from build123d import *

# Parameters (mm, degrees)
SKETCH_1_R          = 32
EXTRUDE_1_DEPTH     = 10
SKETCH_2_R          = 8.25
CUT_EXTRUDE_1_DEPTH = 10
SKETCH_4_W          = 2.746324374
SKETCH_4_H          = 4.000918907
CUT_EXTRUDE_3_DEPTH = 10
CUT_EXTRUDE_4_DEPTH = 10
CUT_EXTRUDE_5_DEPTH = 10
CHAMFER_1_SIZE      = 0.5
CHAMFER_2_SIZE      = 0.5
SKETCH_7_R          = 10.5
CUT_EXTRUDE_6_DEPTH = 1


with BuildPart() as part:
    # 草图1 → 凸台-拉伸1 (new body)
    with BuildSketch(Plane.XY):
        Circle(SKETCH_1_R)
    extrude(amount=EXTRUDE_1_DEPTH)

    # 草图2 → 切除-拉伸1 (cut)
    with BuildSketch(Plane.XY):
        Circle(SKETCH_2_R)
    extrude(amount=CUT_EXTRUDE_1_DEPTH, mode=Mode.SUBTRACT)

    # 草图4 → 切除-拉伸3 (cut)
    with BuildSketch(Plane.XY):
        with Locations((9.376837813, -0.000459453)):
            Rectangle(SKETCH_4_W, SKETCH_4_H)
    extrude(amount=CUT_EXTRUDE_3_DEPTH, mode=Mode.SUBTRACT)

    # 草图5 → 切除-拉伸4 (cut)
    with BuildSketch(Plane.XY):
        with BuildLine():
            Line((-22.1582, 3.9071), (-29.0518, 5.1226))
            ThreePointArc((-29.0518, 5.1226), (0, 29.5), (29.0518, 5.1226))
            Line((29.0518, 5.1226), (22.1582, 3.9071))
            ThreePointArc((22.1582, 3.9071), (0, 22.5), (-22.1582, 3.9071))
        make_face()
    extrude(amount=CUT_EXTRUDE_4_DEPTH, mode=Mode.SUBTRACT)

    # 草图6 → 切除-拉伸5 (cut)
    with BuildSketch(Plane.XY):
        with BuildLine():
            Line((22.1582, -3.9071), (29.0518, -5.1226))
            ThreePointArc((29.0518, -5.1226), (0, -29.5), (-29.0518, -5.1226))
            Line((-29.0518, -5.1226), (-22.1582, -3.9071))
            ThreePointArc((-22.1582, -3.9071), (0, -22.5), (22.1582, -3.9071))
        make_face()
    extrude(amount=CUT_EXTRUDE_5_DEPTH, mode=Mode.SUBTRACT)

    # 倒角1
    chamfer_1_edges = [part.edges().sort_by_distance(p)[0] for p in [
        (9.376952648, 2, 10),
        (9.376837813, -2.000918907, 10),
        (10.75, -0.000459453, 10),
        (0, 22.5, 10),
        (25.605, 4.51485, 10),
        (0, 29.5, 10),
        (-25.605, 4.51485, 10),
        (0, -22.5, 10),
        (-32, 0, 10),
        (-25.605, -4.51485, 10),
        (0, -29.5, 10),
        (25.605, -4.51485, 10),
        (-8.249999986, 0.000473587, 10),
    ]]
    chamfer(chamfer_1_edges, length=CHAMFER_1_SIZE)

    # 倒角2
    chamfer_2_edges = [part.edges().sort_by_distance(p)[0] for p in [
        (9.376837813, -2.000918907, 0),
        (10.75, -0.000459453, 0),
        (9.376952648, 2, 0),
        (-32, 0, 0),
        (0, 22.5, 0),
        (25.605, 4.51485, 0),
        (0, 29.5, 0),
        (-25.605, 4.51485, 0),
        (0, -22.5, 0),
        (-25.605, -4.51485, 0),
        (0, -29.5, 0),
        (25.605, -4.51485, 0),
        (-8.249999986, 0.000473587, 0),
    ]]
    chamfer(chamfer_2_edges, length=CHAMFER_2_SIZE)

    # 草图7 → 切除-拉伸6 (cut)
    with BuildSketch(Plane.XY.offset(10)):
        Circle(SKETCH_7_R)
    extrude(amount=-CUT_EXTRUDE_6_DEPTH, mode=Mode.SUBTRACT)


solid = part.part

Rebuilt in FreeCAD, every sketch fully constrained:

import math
import FreeCAD as App
import Part
import Sketcher


def edges_at(feature, points):
    """Names of the edges that pass closest to the given points."""
    edges = feature.Shape.Edges
    near = lambda p: min(range(len(edges)), key=lambda i: edges[i].distToShape(Part.Vertex(*p))[0])
    return sorted({f"Edge{near(p) + 1}" for p in points})


def add_polygon(sketch, points):
    """Adds a closed chain of lines whose ends are joined by coincident constraints."""
    first, n = sketch.GeometryCount, len(points)
    for a, b in zip(points, points[1:] + points[:1]):
        sketch.addGeometry(Part.LineSegment(App.Vector(*a, 0), App.Vector(*b, 0)), False)
    for i in range(n):
        sketch.addConstraint(Sketcher.Constraint("Coincident", first + i, 2, first + (i + 1) % n, 1))

doc = App.newDocument("Part")
params = doc.addObject("Spreadsheet::Sheet", "Params")
for row, (alias, value) in enumerate([
    ("sketch1_diameter", "64 mm"),
    ("pad1_length", "10 mm"),
    ("sketch2_diameter", "16.5 mm"),
    ("pocket1_length", "10 mm"),
    ("pocket2_length", "10 mm"),
    ("pocket3_length", "10 mm"),
    ("pocket4_length", "10 mm"),
    ("chamfer_size", "0.5 mm"),
    ("chamfer2_size", "0.5 mm"),
    ("sketch6_diameter", "21 mm"),
    ("pocket5_length", "1 mm"),
], start=1):
    params.set(f"A{row}", alias)
    params.set(f"B{row}", "=" + value)
    params.setAlias(f"B{row}", alias)

body = doc.addObject("PartDesign::Body", "Body")

# Sketch on XY plane
sketch1 = doc.addObject("Sketcher::SketchObject", "Sketch")
body.addObject(sketch1)
sketch1.AttachmentSupport = (doc.XY_Plane, [""])
sketch1.MapMode = "FlatFace"
sketch1.addGeometry(Part.Circle(App.Vector(0, 0, 0), App.Vector(0, 0, 1), 32), False)
sketch1.addConstraint(Sketcher.Constraint("Coincident", 0, 3, -1, 1))
sketch1.addConstraint(Sketcher.Constraint("Diameter", 0, 64.0))
sketch1.setExpression("Constraints[1]", "Params.sketch1_diameter")
pad1 = doc.addObject("PartDesign::Pad", "Pad")
body.addObject(pad1)
pad1.Profile = sketch1
pad1.setExpression("Length", "Params.pad1_length")

# Sketch on XY plane
sketch2 = doc.addObject("Sketcher::SketchObject", "Sketch001")
body.addObject(sketch2)
sketch2.AttachmentSupport = (doc.XY_Plane, [""])
sketch2.MapMode = "FlatFace"
sketch2.addGeometry(Part.Circle(App.Vector(0, 0, 0), App.Vector(0, 0, 1), 8), False)
sketch2.addConstraint(Sketcher.Constraint("Coincident", 0, 3, -1, 1))
sketch2.addConstraint(Sketcher.Constraint("Diameter", 0, 16.5))
sketch2.setExpression("Constraints[1]", "Params.sketch2_diameter")
pocket1 = doc.addObject("PartDesign::Pocket", "Pocket")
body.addObject(pocket1)
pocket1.Profile = sketch2
pocket1.setExpression("Length", "Params.pocket1_length")
pocket1.Reversed = True

# Sketch on XY plane
sketch3 = doc.addObject("Sketcher::SketchObject", "Sketch002")
body.addObject(sketch3)
sketch3.AttachmentSupport = (doc.XY_Plane, [""])
sketch3.MapMode = "FlatFace"
add_polygon(sketch3, [(8, 2), (8, -2), (10.8, -2), (10.8, 2)])  # lines 0-3
sketch3.addConstraint(Sketcher.Constraint("Vertical", 0))
sketch3.addConstraint(Sketcher.Constraint("Horizontal", 1))
sketch3.addConstraint(Sketcher.Constraint("Vertical", 2))
sketch3.addConstraint(Sketcher.Constraint("Horizontal", 3))
sketch3.addConstraint(Sketcher.Constraint("DistanceY", -1, 1, 2, 2, 2.0))
sketch3.addConstraint(Sketcher.Constraint("DistanceX", -1, 1, 1, 2, 10.75))
sketch3.addConstraint(Sketcher.Constraint("DistanceY", 0, 2, 0, 1, 4.000919))
sketch3.addConstraint(Sketcher.Constraint("DistanceX", 1, 1, 1, 2, 2.746324))
pocket2 = doc.addObject("PartDesign::Pocket", "Pocket001")
body.addObject(pocket2)
pocket2.Profile = sketch3
pocket2.setExpression("Length", "Params.pocket2_length")
pocket2.Reversed = True

# Sketch on XY plane
sketch4 = doc.addObject("Sketcher::SketchObject", "Sketch003")
body.addObject(sketch4)
sketch4.AttachmentSupport = (doc.XY_Plane, [""])
sketch4.MapMode = "FlatFace"
sketch4.addGeometry(Part.LineSegment(App.Vector(-29, 5, 0), App.Vector(-22, 4, 0)), False)
sketch4.addGeometry(Part.ArcOfCircle(Part.Circle(App.Vector(0, 0, 0), App.Vector(0, 0, 1), 23), math.radians(10), math.radians(170)), False)
sketch4.addGeometry(Part.LineSegment(App.Vector(22, 4, 0), App.Vector(29, 5, 0)), False)
sketch4.addGeometry(Part.ArcOfCircle(Part.Circle(App.Vector(0, 0, 0), App.Vector(0, 0, 1), 29), math.radians(10), math.radians(170)), False)
sketch4.addConstraint(Sketcher.Constraint("Coincident", 0, 2, 1, 2))
sketch4.addConstraint(Sketcher.Constraint("Coincident", 1, 1, 2, 1))
sketch4.addConstraint(Sketcher.Constraint("Coincident", 2, 2, 3, 1))
sketch4.addConstraint(Sketcher.Constraint("Coincident", 3, 2, 0, 1))
sketch4.addConstraint(Sketcher.Constraint("Symmetric", 1, 3, 3, 3, -1, 1))
sketch4.addConstraint(Sketcher.Constraint("Symmetric", 0, 2, 1, 1, -2))
sketch4.addConstraint(Sketcher.Constraint("Horizontal", 2, 2, 3, 2))
sketch4.addConstraint(Sketcher.Constraint("Radius", 3, 29.499961))
sketch4.addConstraint(Sketcher.Constraint("DistanceX", 0, 2, 2, 2, 51.21))
sketch4.addConstraint(Sketcher.Constraint("Radius", 1, 22.500034))
sketch4.addConstraint(Sketcher.Constraint("DistanceX", 0, 2, -1, 1, 22.1582))
sketch4.addConstraint(Sketcher.Constraint("DistanceY", -1, 1, 0, 2, 3.9071))
pocket3 = doc.addObject("PartDesign::Pocket", "Pocket002")
body.addObject(pocket3)
pocket3.Profile = sketch4
pocket3.setExpression("Length", "Params.pocket3_length")
pocket3.Reversed = True

# Sketch on XY plane
sketch5 = doc.addObject("Sketcher::SketchObject", "Sketch004")
body.addObject(sketch5)
sketch5.AttachmentSupport = (doc.XY_Plane, [""])
sketch5.MapMode = "FlatFace"
sketch5.addGeometry(Part.LineSegment(App.Vector(29, -5, 0), App.Vector(22, -4, 0)), False)
sketch5.addGeometry(Part.ArcOfCircle(Part.Circle(App.Vector(0, 0, 0), App.Vector(0, 0, 1), 23), math.radians(-170), math.radians(-10)), False)
sketch5.addGeometry(Part.LineSegment(App.Vector(-22, -4, 0), App.Vector(-29, -5, 0)), False)
sketch5.addGeometry(Part.ArcOfCircle(Part.Circle(App.Vector(0, 0, 0), App.Vector(0, 0, 1), 29), math.radians(-170), math.radians(-10)), False)
sketch5.addConstraint(Sketcher.Constraint("Coincident", 0, 2, 1, 2))
sketch5.addConstraint(Sketcher.Constraint("Coincident", 1, 1, 2, 1))
sketch5.addConstraint(Sketcher.Constraint("Coincident", 2, 2, 3, 1))
sketch5.addConstraint(Sketcher.Constraint("Coincident", 3, 2, 0, 1))
sketch5.addConstraint(Sketcher.Constraint("Symmetric", 1, 3, 3, 3, -1, 1))
sketch5.addConstraint(Sketcher.Constraint("Symmetric", 0, 2, 1, 1, -2))
sketch5.addConstraint(Sketcher.Constraint("Horizontal", 2, 2, 3, 2))
sketch5.addConstraint(Sketcher.Constraint("Radius", 3, 29.499961))
sketch5.addConstraint(Sketcher.Constraint("DistanceX", 2, 2, 0, 2, 51.21))
sketch5.addConstraint(Sketcher.Constraint("Radius", 1, 22.500034))
sketch5.addConstraint(Sketcher.Constraint("DistanceX", -1, 1, 0, 2, 22.1582))
sketch5.addConstraint(Sketcher.Constraint("DistanceY", 0, 2, -1, 1, 3.9071))
pocket4 = doc.addObject("PartDesign::Pocket", "Pocket003")
body.addObject(pocket4)
pocket4.Profile = sketch5
pocket4.setExpression("Length", "Params.pocket4_length")
pocket4.Reversed = True
doc.recompute()

chamfer = doc.addObject("PartDesign::Chamfer", "Chamfer")
body.addObject(chamfer)
chamfer.Base = (pocket4, edges_at(pocket4, [
    (9.377, 2, 10),
    (9.377, -2.001, 10),
    (10.75, 0, 10),
    (0, 22.5, 10),
    (25.605, 4.515, 10),
    (0, 29.5, 10),
    (-25.605, 4.515, 10),
    (0, -22.5, 10),
    (-32, 0, 10),
    (-25.605, -4.515, 10),
    (0, -29.5, 10),
    (25.605, -4.515, 10),
    (-8.25, 0, 10),
]))
chamfer.setExpression("Size", "Params.chamfer_size")
doc.recompute()

chamfer2 = doc.addObject("PartDesign::Chamfer", "Chamfer001")
body.addObject(chamfer2)
chamfer2.Base = (chamfer, edges_at(chamfer, [
    (9.377, -2.001, 0),
    (10.75, 0, 0),
    (9.377, 2, 0),
    (-32, 0, 0),
    (0, 22.5, 0),
    (25.605, 4.515, 0),
    (0, 29.5, 0),
    (-25.605, 4.515, 0),
    (0, -22.5, 0),
    (-25.605, -4.515, 0),
    (0, -29.5, 0),
    (25.605, -4.515, 0),
    (-8.25, 0, 0),
]))
chamfer2.setExpression("Size", "Params.chamfer2_size")

# Sketch on XY plane
sketch6 = doc.addObject("Sketcher::SketchObject", "Sketch005")
body.addObject(sketch6)
sketch6.AttachmentSupport = (doc.XY_Plane, [""])
sketch6.MapMode = "FlatFace"
sketch6.AttachmentOffset = App.Placement(App.Vector(0, 0, 10), App.Rotation())
sketch6.addGeometry(Part.Circle(App.Vector(0, 0, 0), App.Vector(0, 0, 1), 10), False)
sketch6.addConstraint(Sketcher.Constraint("Coincident", 0, 3, -1, 1))
sketch6.addConstraint(Sketcher.Constraint("Diameter", 0, 21.0))
sketch6.setExpression("Constraints[1]", "Params.sketch6_diameter")
pocket5 = doc.addObject("PartDesign::Pocket", "Pocket004")
body.addObject(pocket5)
pocket5.Profile = sketch6
pocket5.setExpression("Length", "Params.pocket5_length")

doc.recompute()
